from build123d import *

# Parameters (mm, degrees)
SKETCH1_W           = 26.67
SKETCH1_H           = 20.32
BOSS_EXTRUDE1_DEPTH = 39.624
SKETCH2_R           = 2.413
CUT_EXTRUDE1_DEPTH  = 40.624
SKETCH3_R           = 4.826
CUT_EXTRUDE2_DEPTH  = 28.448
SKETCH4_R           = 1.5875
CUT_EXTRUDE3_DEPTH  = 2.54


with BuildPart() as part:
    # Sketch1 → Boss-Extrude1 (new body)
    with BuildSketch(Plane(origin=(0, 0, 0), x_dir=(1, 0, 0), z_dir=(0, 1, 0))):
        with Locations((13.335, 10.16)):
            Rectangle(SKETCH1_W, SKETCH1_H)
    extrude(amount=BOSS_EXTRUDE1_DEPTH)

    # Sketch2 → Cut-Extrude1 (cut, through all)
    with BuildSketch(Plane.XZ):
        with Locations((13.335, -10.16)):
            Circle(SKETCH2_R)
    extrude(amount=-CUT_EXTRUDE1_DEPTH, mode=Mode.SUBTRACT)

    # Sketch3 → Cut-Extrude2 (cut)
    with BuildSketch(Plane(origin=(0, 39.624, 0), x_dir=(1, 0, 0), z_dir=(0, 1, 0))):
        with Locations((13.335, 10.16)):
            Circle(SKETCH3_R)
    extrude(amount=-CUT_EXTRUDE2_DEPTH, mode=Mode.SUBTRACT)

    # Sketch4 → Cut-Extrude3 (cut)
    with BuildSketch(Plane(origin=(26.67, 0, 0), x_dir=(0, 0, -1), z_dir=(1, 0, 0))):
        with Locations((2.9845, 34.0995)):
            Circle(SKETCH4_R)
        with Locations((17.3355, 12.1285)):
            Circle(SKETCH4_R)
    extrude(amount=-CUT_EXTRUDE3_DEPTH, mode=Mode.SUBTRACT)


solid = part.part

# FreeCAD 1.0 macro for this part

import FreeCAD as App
import Part
import Sketcher
from FreeCAD import Vector
Q = App.Units.Quantity

doc = App.newDocument("Part")
body = doc.addObject("PartDesign::Body", "Body")

sketch1 = body.newObject("Sketcher::SketchObject", "Sketch")
sketch1.AttachmentSupport = (doc.getObject("XZ_Plane"), [""])
sketch1.MapMode = "FlatFace"
sketch1.addGeometry([
    Part.LineSegment(Vector(0, -20, 0), Vector(0, 0, 0)),
    Part.LineSegment(Vector(0, 0, 0), Vector(27, 0, 0)),
    Part.LineSegment(Vector(27, 0, 0), Vector(27, -20, 0)),
    Part.LineSegment(Vector(27, -20, 0), Vector(0, -20, 0)),
], False)
sketch1.addConstraint([
    Sketcher.Constraint("Coincident", 0, 2, 1, 1),
    Sketcher.Constraint("Coincident", 1, 2, 2, 1),
    Sketcher.Constraint("Coincident", 2, 2, 3, 1),
    Sketcher.Constraint("Coincident", 3, 2, 0, 1),
    Sketcher.Constraint("Vertical", 0),
    Sketcher.Constraint("Horizontal", 1),
    Sketcher.Constraint("Vertical", 2),
    Sketcher.Constraint("Horizontal", 3),
    Sketcher.Constraint("Coincident", 0, 2, -1, 1),
    Sketcher.Constraint("DistanceY", 0, 1, 0, 2, Q("0.8 in")),
    Sketcher.Constraint("DistanceX", 1, 1, 1, 2, Q("1.05 in")),
])
pad1 = body.newObject("PartDesign::Pad", "Pad")
pad1.Profile = sketch1
pad1.Length = Q("1.56 in")
pad1.Reversed = True

sketch2 = body.newObject("Sketcher::SketchObject", "Sketch001")
sketch2.AttachmentSupport = (doc.getObject("XZ_Plane"), [""])
sketch2.MapMode = "FlatFace"
sketch2.addGeometry(Part.Circle(Vector(13.3, -10.2, 0), Vector(0, 0, 1), 2.4), False)
sketch2.addConstraint([
    Sketcher.Constraint("Diameter", 0, Q("0.19 in")),
    Sketcher.Constraint("DistanceY", 0, 3, -1, 1, Q("0.4 in")),
    Sketcher.Constraint("DistanceX", -1, 1, 0, 3, Q("0.525 in")),
])
pocket1 = body.newObject("PartDesign::Pocket", "Pocket")
pocket1.Profile = sketch2
pocket1.Type = "ThroughAll"

sketch3 = body.newObject("Sketcher::SketchObject", "Sketch002")
sketch3.AttachmentSupport = (doc.getObject("XZ_Plane"), [""])
sketch3.MapMode = "FlatFace"
sketch3.AttachmentOffset = App.Placement(Vector(0, 0, -1.56 * 25.4), App.Rotation())
sketch3.addGeometry(Part.Circle(Vector(13.3, -10.2, 0), Vector(0, 0, 1), 4.8), False)
sketch3.addConstraint([
    Sketcher.Constraint("Diameter", 0, Q("0.38 in")),
    Sketcher.Constraint("DistanceY", 0, 3, -1, 1, Q("0.4 in")),
    Sketcher.Constraint("DistanceX", -1, 1, 0, 3, Q("0.525 in")),
])
pocket2 = body.newObject("PartDesign::Pocket", "Pocket001")
pocket2.Profile = sketch3
pocket2.Length = Q("1.12 in")
pocket2.Reversed = True

sketch4 = body.newObject("Sketcher::SketchObject", "Sketch003")
sketch4.AttachmentSupport = (doc.getObject("YZ_Plane"), [""])
sketch4.MapMode = "FlatFace"
sketch4.AttachmentOffset = App.Placement(Vector(0, 0, 1.05 * 25.4), App.Rotation())
sketch4.addGeometry([
    Part.Circle(Vector(34.1, -3, 0), Vector(0, 0, 1), 1.6),
    Part.Circle(Vector(12.1, -17.3, 0), Vector(0, 0, 1), 1.6),
], False)
sketch4.addConstraint([
    Sketcher.Constraint("Equal", 0, 1),
    Sketcher.Constraint("Diameter", 0, Q("0.125 in")),
    Sketcher.Constraint("DistanceX", 1, 3, 0, 3, Q("0.865 in")),
    Sketcher.Constraint("DistanceY", 1, 3, 0, 3, Q("0.565 in")),
    Sketcher.Constraint("DistanceX", -1, 1, 0, 3, Q("1.3425 in")),
    Sketcher.Constraint("DistanceY", 0, 3, -1, 1, Q("0.1175 in")),
])
pocket3 = body.newObject("PartDesign::Pocket", "Pocket002")
pocket3.Profile = sketch4
pocket3.Length = Q("0.1 in")

doc.recompute()
